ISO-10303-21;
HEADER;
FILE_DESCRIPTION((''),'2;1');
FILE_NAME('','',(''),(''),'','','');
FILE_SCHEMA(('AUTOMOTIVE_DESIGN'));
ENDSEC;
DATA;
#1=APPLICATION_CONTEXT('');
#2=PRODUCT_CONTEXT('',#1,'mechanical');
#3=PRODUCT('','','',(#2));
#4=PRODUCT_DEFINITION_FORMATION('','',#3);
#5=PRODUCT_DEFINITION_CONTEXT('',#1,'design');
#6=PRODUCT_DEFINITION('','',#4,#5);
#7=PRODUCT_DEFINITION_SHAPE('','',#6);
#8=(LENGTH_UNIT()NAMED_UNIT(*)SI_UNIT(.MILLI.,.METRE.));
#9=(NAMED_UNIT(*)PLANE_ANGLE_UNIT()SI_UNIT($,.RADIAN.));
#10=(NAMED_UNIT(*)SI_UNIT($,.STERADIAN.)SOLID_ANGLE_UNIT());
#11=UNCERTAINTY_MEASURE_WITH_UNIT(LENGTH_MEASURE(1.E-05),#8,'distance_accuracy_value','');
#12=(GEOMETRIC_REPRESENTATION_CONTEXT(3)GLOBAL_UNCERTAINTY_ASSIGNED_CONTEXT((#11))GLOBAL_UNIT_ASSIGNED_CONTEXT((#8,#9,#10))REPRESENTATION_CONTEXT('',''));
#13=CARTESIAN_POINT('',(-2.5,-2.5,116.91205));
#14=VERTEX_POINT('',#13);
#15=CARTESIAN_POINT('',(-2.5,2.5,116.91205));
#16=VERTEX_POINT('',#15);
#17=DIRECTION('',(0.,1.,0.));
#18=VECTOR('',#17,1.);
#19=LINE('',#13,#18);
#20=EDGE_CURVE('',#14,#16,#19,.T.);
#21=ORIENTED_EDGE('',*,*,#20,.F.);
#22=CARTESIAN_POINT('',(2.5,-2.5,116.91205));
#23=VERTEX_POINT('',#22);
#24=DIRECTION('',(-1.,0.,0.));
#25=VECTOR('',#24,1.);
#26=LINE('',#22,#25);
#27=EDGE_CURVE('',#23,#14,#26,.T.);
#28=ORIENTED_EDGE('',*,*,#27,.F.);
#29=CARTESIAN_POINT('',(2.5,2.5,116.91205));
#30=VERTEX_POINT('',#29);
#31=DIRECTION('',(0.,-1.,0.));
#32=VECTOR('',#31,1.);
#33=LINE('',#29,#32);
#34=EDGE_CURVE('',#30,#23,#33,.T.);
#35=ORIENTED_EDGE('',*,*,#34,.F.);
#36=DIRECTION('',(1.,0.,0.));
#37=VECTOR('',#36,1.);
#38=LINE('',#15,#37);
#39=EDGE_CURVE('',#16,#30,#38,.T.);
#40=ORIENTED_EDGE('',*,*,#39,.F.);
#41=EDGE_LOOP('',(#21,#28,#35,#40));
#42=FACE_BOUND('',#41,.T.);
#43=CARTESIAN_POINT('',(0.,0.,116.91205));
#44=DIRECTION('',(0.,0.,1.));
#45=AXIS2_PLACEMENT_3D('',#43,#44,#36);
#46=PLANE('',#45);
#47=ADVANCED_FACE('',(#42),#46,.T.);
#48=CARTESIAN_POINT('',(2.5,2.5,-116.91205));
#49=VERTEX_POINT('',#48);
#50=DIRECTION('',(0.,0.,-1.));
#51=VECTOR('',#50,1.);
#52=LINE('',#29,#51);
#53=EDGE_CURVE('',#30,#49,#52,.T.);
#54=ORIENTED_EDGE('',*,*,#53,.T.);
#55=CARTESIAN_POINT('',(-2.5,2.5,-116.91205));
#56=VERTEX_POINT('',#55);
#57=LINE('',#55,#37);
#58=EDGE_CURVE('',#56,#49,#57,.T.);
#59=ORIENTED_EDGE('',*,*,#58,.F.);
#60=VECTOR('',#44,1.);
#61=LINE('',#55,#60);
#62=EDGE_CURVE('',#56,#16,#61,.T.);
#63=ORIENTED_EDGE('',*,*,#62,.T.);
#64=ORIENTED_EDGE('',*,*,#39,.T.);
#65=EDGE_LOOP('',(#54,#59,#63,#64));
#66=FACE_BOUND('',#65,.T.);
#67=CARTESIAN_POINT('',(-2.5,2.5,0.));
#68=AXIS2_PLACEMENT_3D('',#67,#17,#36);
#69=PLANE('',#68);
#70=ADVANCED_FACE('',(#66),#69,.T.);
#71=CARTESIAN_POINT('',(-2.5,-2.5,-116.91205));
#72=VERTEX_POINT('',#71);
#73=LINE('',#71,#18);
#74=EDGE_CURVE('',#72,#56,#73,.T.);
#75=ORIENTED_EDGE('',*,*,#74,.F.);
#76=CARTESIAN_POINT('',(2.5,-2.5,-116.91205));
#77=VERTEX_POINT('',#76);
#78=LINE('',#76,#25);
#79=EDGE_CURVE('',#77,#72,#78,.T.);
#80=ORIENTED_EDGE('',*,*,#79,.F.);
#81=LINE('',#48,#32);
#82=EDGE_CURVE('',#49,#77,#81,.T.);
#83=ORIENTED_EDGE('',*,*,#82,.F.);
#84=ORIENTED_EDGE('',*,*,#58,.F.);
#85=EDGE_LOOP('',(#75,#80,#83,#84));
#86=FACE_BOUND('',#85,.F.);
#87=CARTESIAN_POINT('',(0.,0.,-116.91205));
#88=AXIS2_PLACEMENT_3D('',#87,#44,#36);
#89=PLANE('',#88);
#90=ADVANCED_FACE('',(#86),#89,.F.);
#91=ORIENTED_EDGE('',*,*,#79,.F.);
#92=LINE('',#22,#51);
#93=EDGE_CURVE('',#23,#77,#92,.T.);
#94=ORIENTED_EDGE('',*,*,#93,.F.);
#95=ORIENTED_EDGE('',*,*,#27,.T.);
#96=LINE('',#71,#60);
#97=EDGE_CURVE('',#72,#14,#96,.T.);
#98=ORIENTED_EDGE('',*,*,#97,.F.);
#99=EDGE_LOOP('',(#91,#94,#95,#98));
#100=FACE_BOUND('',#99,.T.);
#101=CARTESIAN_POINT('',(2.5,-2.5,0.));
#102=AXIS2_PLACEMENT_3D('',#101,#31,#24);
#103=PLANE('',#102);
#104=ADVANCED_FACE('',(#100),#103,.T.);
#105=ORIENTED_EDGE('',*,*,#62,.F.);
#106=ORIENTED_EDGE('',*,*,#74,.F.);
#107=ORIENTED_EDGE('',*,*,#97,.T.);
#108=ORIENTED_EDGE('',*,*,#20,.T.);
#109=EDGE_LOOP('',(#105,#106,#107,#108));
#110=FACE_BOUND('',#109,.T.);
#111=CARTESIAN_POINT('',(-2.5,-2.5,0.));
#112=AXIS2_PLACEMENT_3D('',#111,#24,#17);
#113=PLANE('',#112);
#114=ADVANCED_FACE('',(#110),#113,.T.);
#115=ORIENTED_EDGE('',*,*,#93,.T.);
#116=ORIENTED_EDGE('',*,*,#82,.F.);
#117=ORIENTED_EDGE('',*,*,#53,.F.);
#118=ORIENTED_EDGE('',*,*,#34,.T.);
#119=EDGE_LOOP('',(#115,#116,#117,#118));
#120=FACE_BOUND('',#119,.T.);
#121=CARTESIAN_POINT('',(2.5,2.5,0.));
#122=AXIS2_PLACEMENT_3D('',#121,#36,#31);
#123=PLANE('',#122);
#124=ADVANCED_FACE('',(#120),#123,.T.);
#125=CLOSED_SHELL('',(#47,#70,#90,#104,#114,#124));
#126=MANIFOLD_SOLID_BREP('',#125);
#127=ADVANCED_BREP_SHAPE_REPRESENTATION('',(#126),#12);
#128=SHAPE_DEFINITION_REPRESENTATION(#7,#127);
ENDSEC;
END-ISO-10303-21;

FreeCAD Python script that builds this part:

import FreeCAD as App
import Part
import Sketcher

V = App.Vector


def add_polygon(sketch, points):
    """Adds a closed chain of lines whose ends are joined by coincident constraints."""
    first, n = sketch.GeometryCount, len(points)
    for a, b in zip(points, points[1:] + points[:1]):
        sketch.addGeometry(Part.LineSegment(App.Vector(*a, 0), App.Vector(*b, 0)), False)
    for i in range(n):
        sketch.addConstraint(Sketcher.Constraint("Coincident", first + i, 2, first + (i + 1) % n, 1))

doc = App.newDocument("Part")
params = doc.addObject("Spreadsheet::Sheet", "Params")
for row, (alias, value) in enumerate([
    ("sketch1_width", "5 mm"),
    ("pad1_length", "233.8241 mm"),
], start=1):
    params.set(f"A{row}", alias)
    params.set(f"B{row}", "=" + value)
    params.setAlias(f"B{row}", alias)

body = doc.addObject("PartDesign::Body", "Body")

# Sketch on XY plane
sketch1 = doc.addObject("Sketcher::SketchObject", "Sketch")
body.addObject(sketch1)
sketch1.AttachmentSupport = (doc.XY_Plane, [""])
sketch1.MapMode = "FlatFace"
add_polygon(sketch1, [(2.5, 2.5), (-2.5, 2.5), (-2.5, -2.5), (2.5, -2.5)])  # lines 0-3
sketch1.addConstraint([
    Sketcher.Constraint("Horizontal", 0),
    Sketcher.Constraint("Vertical", 1),
    Sketcher.Constraint("Horizontal", 2),
    Sketcher.Constraint("Vertical", 3),
    Sketcher.Constraint("Symmetric", 0, 2, 2, 2, -1, 1),
    Sketcher.Constraint("Equal", 2, 1),
    Sketcher.Constraint("DistanceX", 0, 2, 0, 1, 5.0),
])
sketch1.setExpression("Constraints[10]", "Params.sketch1_width")
pad1 = doc.addObject("PartDesign::Pad", "Pad")
body.addObject(pad1)
pad1.Profile = sketch1
pad1.setExpression("Length", "Params.pad1_length")
pad1.Midplane = True

doc.recompute()
